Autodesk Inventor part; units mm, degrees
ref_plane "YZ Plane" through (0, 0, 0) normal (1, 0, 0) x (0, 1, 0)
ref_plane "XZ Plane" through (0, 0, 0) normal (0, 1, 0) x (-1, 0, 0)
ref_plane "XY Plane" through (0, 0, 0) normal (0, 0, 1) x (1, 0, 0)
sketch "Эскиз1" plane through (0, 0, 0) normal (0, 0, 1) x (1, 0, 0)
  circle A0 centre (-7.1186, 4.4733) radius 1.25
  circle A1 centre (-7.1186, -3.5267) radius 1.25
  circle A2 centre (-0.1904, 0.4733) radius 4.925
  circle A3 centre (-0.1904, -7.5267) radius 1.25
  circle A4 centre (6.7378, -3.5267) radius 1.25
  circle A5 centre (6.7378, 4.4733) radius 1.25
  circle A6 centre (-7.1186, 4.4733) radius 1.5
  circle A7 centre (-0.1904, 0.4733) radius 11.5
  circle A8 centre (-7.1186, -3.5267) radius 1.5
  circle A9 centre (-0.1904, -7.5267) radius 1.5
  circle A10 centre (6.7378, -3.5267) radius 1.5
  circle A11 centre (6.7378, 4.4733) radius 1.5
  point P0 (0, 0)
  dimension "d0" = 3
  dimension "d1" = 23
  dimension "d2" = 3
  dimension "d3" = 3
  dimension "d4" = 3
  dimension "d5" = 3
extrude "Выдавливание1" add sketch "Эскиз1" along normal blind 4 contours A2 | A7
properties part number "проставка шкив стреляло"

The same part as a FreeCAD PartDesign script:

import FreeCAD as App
import Part
import Sketcher

doc = App.newDocument("Part")
body = doc.addObject("PartDesign::Body", "Body")

sketch1 = doc.addObject("Sketcher::SketchObject", "Sketch")
body.addObject(sketch1)
sketch1.AttachmentSupport = (doc.XY_Plane, [""])
sketch1.MapMode = "FlatFace"
sketch1.addGeometry([
    Part.Circle(App.Vector(-0.1904, 0.4733, 0), App.Vector(0, 0, 1), 11.5),
    Part.Circle(App.Vector(-7.1186, -3.5267, 0), App.Vector(0, 0, 1), 1.5),
    Part.Circle(App.Vector(-0.1904, -7.5267, 0), App.Vector(0, 0, 1), 1.5),
    Part.Circle(App.Vector(6.7378, -3.5267, 0), App.Vector(0, 0, 1), 1.5),
    Part.Circle(App.Vector(-7.1186, 4.4733, 0), App.Vector(0, 0, 1), 1.5),
    Part.Circle(App.Vector(6.7378, 4.4733, 0), App.Vector(0, 0, 1), 1.5),
], False)
sketch1.addConstraint([
    Sketcher.Constraint("Equal", 1, 2),
    Sketcher.Constraint("Equal", 2, 3),
    Sketcher.Constraint("Equal", 3, 4),
    Sketcher.Constraint("Equal", 4, 5),
    Sketcher.Constraint("Horizontal", 1, 3, 3, 3),
    Sketcher.Constraint("Horizontal", 4, 3, 5, 3),
    Sketcher.Constraint("Vertical", 0, 3, 2, 3),
    Sketcher.Constraint("Vertical", 1, 3, 4, 3),
    Sketcher.Constraint("Vertical", 3, 3, 5, 3),
    Sketcher.Constraint("Diameter", 0, 23.0),
    Sketcher.Constraint("Diameter", 1, 3.0),
    Sketcher.Constraint("DistanceY", 1, 3, 0, 3, 4.0),
    Sketcher.Constraint("DistanceY", 2, 3, 1, 3, 4.0),
    Sketcher.Constraint("DistanceY", 0, 3, 4, 3, 4.0),
    Sketcher.Constraint("DistanceX", 0, 3, -1, 1, 0.1904),
    Sketcher.Constraint("DistanceY", -1, 1, 0, 3, 0.4733),
    Sketcher.Constraint("DistanceX", 1, 3, -1, 1, 7.1186),
    Sketcher.Constraint("DistanceX", -1, 1, 3, 3, 6.7378),
])
pad1 = doc.addObject("PartDesign::Pad", "Pad")
body.addObject(pad1)
pad1.Profile = sketch1
pad1.Length = 4

doc.recompute()
